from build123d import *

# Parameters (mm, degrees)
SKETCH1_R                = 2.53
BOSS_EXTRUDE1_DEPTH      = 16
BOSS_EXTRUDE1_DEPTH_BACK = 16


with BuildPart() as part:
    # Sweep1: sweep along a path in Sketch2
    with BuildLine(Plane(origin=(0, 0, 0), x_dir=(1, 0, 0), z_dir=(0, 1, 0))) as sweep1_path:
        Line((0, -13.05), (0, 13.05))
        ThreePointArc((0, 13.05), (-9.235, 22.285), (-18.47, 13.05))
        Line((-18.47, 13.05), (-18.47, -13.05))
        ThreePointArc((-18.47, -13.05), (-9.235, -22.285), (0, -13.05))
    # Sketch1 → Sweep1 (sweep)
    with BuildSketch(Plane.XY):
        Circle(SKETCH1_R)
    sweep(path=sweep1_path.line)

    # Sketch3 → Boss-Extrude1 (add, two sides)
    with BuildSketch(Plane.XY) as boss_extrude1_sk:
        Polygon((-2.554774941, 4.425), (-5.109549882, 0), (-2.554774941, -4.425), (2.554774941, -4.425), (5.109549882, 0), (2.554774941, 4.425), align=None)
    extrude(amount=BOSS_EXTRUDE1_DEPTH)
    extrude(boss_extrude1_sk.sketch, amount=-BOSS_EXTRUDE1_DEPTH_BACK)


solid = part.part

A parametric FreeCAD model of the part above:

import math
import FreeCAD as App
import Part
import Sketcher

V = App.Vector
Q = App.Units.Quantity

doc = App.newDocument("Part")
body = doc.addObject("PartDesign::Body", "Body")

sketch1 = doc.addObject("Sketcher::SketchObject", "Sketch")
body.addObject(sketch1)
sketch1.AttachmentSupport = (doc.XY_Plane, [""])
sketch1.MapMode = "FlatFace"
sketch1.addGeometry(Part.Circle(V(0, 0, 0), V(0, 0, 1), 2.53), False)
sketch1.addConstraint(Sketcher.Constraint("Coincident", 0, 3, -1, 1))
sketch1.addConstraint(Sketcher.Constraint("Diameter", 0, 5.06))

sketch2 = doc.addObject("Sketcher::SketchObject", "Sketch001")
body.addObject(sketch2)
sketch2.AttachmentSupport = (doc.XZ_Plane, [""])
sketch2.MapMode = "FlatFace"
sketch2.addGeometry(Part.LineSegment(V(0, 13.05, 0), V(0, -13.05, 0)), False)
sketch2.addGeometry(Part.ArcOfCircle(Part.Circle(V(-9.235, -13.05, 0), V(0, 0, 1), 9.235), math.radians(180), math.radians(360)), False)
sketch2.addGeometry(Part.LineSegment(V(-18.47, -13.05, 0), V(-18.47, 13.05, 0)), False)
sketch2.addGeometry(Part.ArcOfCircle(Part.Circle(V(-9.235, 13.05, 0), V(0, 0, 1), 9.235), math.radians(0), math.radians(180)), False)
sketch2.addConstraint(Sketcher.Constraint("Tangent", 0, 2, 1, 2))
sketch2.addConstraint(Sketcher.Constraint("Tangent", 1, 1, 2, 1))
sketch2.addConstraint(Sketcher.Constraint("Tangent", 2, 2, 3, 2))
sketch2.addConstraint(Sketcher.Constraint("Tangent", 3, 1, 0, 1))
sketch2.addConstraint(Sketcher.Constraint("Vertical", 0))
sketch2.addConstraint(Sketcher.Constraint("Vertical", 2))
sketch2.addConstraint(Sketcher.Constraint("Symmetric", 0, 2, 3, 1, -1, 1))
sketch2.addConstraint(Sketcher.Constraint("DistanceY", 0, 2, 0, 1, 26.1))
sketch2.addConstraint(Sketcher.Constraint("Radius", 1, 9.235))
doc.recompute()

additivepipe = doc.addObject("PartDesign::AdditivePipe", "AdditivePipe")
body.addObject(additivepipe)
additivepipe.Profile = sketch1
additivepipe.Spine = (sketch2, ["Edge1", "Edge2", "Edge3", "Edge4"])

sketch3 = doc.addObject("Sketcher::SketchObject", "Sketch002")
body.addObject(sketch3)
sketch3.AttachmentSupport = (doc.XY_Plane, [""])
sketch3.MapMode = "FlatFace"
sketch3.addGeometry(Part.LineSegment(V(-2.554775, 4.425, 0), V(-5.10955, 0, 0)), False)
sketch3.addGeometry(Part.LineSegment(V(-5.10955, 0, 0), V(-2.554775, -4.425, 0)), False)
sketch3.addGeometry(Part.LineSegment(V(-2.554775, -4.425, 0), V(2.554775, -4.425, 0)), False)
sketch3.addGeometry(Part.LineSegment(V(2.554775, -4.425, 0), V(5.10955, 0, 0)), False)
sketch3.addGeometry(Part.LineSegment(V(5.10955, 0, 0), V(2.554775, 4.425, 0)), False)
sketch3.addGeometry(Part.LineSegment(V(2.554775, 4.425, 0), V(-2.554775, 4.425, 0)), False)
sketch3.addConstraint(Sketcher.Constraint("Coincident", 0, 2, 1, 1))
sketch3.addConstraint(Sketcher.Constraint("Coincident", 1, 2, 2, 1))
sketch3.addConstraint(Sketcher.Constraint("Coincident", 2, 2, 3, 1))
sketch3.addConstraint(Sketcher.Constraint("Coincident", 3, 2, 4, 1))
sketch3.addConstraint(Sketcher.Constraint("Coincident", 4, 2, 5, 1))
sketch3.addConstraint(Sketcher.Constraint("Coincident", 5, 2, 0, 1))
sketch3.addConstraint(Sketcher.Constraint("Horizontal", 2))
sketch3.addConstraint(Sketcher.Constraint("Horizontal", 5))
sketch3.addConstraint(Sketcher.Constraint("Symmetric", 0, 2, 3, 2, -1, 1))
sketch3.addConstraint(Sketcher.Constraint("Symmetric", 1, 2, 4, 2, -1, 1))
sketch3.addConstraint(Sketcher.Constraint("PointOnObject", 0, 2, -1))
sketch3.addConstraint(Sketcher.Constraint("Parallel", 0, 3))
sketch3.addConstraint(Sketcher.Constraint("Vertical", 2, 2, 4, 2))
sketch3.addConstraint(Sketcher.Constraint("Angle", 0, Q("-120 deg")))
sketch3.addConstraint(Sketcher.Constraint("DistanceY", 2, 2, 4, 2, 8.85))
sketch3.addConstraint(Sketcher.Constraint("DistanceX", 2, 1, 2, 2, 5.10955))
pad1 = doc.addObject("PartDesign::Pad", "Pad")
body.addObject(pad1)
pad1.Profile = sketch3
pad1.Type = "TwoLengths"
pad1.Length = 16
pad1.Length2 = 16

doc.recompute()
